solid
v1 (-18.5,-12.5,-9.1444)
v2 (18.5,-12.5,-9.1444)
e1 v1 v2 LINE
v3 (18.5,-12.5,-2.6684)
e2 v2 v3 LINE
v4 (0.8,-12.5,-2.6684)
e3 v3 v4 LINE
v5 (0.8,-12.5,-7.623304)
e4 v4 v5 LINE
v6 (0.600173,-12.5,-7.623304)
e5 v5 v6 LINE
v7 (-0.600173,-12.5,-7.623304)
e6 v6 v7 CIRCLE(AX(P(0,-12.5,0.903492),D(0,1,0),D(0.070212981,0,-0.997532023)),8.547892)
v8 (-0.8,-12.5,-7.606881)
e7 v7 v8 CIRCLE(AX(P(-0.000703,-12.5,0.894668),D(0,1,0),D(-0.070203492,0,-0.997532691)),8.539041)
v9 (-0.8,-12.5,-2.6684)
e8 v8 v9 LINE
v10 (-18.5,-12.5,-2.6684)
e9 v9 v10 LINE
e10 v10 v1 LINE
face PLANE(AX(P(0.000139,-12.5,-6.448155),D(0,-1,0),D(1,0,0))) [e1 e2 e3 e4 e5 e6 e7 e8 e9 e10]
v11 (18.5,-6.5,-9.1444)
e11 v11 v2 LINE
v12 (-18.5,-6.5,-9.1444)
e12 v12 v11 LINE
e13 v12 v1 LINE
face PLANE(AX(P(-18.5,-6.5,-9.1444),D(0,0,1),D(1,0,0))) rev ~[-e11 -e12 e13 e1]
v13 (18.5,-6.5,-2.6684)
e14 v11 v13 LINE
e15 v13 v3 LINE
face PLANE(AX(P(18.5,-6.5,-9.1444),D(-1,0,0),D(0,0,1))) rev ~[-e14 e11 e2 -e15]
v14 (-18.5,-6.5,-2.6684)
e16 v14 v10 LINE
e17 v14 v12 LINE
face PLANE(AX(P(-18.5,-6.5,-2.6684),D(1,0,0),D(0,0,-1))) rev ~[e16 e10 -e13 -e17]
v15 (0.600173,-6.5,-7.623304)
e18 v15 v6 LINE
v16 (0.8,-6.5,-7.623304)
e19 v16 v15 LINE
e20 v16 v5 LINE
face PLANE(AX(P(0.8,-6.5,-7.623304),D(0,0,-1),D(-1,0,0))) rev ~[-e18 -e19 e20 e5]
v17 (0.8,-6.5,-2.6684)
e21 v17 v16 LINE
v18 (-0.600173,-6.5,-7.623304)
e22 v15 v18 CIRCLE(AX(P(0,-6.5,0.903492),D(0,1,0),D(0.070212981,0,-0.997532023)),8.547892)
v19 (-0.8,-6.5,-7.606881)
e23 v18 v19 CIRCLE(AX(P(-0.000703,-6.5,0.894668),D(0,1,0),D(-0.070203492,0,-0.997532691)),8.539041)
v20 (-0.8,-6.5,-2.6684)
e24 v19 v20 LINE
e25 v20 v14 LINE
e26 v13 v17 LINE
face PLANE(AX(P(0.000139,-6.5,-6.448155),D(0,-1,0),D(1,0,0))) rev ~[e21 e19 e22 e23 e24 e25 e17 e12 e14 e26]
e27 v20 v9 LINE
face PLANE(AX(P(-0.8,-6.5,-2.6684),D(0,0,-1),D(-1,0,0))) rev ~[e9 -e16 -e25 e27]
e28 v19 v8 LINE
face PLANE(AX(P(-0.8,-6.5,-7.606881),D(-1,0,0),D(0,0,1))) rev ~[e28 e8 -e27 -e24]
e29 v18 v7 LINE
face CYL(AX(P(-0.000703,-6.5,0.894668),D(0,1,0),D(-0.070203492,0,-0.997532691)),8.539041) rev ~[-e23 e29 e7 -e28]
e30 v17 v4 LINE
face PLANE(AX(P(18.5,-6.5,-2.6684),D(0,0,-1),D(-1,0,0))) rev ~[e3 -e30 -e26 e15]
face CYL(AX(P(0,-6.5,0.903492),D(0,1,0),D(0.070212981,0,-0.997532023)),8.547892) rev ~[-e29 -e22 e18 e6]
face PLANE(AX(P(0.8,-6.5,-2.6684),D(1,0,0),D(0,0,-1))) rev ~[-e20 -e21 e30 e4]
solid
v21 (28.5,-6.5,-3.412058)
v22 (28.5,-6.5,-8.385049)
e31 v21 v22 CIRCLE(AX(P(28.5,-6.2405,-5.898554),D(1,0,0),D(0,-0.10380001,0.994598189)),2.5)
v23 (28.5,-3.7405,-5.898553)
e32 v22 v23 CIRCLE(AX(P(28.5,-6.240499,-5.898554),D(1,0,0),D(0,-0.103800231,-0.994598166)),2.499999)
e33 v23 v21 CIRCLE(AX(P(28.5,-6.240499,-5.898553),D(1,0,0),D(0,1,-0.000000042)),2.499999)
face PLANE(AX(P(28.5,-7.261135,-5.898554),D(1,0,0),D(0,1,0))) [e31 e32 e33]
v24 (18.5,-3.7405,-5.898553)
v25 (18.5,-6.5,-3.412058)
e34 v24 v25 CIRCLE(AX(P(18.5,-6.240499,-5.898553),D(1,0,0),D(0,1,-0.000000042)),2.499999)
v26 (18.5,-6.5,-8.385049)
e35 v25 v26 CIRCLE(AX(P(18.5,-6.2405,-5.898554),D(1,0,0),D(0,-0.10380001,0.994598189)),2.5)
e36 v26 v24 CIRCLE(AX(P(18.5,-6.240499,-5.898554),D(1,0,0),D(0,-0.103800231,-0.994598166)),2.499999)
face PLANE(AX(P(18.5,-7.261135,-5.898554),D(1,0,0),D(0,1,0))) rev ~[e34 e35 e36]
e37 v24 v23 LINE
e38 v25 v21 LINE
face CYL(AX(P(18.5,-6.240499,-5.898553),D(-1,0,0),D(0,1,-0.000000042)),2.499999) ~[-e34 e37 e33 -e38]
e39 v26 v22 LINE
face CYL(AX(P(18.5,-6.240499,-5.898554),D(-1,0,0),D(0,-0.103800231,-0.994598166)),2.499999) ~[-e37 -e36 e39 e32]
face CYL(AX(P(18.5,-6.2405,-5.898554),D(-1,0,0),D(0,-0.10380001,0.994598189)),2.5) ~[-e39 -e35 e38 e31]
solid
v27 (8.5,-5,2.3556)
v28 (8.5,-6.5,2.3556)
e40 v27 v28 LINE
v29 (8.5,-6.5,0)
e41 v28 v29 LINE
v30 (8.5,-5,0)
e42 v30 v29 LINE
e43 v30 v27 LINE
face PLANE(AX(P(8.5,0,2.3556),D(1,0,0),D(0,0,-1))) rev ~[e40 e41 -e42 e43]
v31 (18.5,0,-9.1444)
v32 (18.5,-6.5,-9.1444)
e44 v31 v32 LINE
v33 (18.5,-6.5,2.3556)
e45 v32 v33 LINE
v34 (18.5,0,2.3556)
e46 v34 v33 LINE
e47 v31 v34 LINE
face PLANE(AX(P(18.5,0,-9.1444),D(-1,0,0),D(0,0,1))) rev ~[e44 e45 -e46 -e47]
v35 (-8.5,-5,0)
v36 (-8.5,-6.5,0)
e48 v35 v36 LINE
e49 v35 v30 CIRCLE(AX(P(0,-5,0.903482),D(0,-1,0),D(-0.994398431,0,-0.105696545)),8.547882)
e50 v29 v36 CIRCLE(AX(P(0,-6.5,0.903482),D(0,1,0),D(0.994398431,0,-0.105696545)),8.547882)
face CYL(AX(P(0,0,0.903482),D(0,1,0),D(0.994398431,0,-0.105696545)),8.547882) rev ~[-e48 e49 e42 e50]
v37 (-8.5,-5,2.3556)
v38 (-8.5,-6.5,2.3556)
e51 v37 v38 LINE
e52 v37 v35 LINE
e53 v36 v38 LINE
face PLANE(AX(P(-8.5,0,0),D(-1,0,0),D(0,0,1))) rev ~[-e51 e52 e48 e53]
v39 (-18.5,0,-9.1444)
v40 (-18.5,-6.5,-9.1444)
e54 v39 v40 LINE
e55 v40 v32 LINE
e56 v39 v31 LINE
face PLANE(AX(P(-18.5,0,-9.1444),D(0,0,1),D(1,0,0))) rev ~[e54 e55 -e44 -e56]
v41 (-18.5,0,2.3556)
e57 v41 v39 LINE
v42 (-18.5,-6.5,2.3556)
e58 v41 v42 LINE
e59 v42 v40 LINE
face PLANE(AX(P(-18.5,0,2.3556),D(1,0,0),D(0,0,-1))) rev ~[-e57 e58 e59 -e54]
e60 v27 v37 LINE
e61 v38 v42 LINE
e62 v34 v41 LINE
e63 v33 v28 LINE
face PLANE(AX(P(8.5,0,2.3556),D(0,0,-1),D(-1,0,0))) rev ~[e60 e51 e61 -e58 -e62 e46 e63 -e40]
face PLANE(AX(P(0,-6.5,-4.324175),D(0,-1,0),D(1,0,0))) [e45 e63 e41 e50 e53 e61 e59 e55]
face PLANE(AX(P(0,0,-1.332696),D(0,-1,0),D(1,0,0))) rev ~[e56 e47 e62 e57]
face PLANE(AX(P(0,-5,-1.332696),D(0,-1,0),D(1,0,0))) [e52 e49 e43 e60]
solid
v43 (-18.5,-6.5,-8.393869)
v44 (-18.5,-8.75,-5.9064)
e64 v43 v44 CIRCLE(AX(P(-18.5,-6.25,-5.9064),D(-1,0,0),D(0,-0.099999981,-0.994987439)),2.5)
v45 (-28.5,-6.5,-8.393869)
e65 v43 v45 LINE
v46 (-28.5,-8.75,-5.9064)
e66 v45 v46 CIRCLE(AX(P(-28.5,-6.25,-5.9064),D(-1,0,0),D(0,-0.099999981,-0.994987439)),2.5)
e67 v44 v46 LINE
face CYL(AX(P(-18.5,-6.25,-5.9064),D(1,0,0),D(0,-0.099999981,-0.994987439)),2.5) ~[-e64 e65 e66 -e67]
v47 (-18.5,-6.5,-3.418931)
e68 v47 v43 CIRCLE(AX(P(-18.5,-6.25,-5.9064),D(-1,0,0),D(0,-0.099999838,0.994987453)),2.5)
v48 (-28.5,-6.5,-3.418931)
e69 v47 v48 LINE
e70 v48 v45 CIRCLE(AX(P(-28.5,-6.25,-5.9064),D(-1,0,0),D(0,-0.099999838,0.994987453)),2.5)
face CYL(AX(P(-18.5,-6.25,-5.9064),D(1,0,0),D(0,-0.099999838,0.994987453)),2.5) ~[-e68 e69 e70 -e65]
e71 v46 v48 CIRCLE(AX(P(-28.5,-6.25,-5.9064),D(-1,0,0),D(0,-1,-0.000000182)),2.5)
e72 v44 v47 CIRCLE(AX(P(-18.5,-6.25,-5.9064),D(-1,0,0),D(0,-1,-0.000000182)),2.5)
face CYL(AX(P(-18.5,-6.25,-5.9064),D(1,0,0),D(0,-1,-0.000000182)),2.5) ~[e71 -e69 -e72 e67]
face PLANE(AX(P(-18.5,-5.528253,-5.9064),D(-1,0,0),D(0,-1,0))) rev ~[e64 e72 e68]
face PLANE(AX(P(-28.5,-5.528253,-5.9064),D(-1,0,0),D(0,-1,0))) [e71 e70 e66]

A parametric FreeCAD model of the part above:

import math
import FreeCAD as App
import Part
import Sketcher

V = App.Vector
Q = App.Units.Quantity

doc = App.newDocument("Part")
params = doc.addObject("Spreadsheet::Sheet", "Params")
for row, (alias, value) in enumerate([
    ("sketch1_width", "17 mm"),
    ("pad1_length", "5 mm"),
    ("sketch2_width", "10 mm"),
    ("sketch2_width2", "37 mm"),
    ("sketch2_height", "11.5 mm"),
    ("pad2_length", "6.5 mm"),
    ("sketch3_width", "37 mm"),
    ("sketch3_width2", "17.7 mm"),
    ("pad3_length", "6 mm"),
    ("sketch4_radius", "2.5 mm"),
    ("pad4_length", "10 mm"),
    ("sketch5_radius", "2.5 mm"),
    ("pad5_length", "10 mm"),
], start=1):
    params.set(f"A{row}", alias)
    params.set(f"B{row}", "=" + value)
    params.setAlias(f"B{row}", alias)

body = doc.addObject("PartDesign::Body", "Body")

sketch1 = body.newObject("Sketcher::SketchObject", "Sketch")
sketch1.AttachmentSupport = (doc.getObject("XZ_Plane"), [""])
sketch1.MapMode = "FlatFace"
sketch1.addGeometry([
    Part.LineSegment(V(-8.5, 2.3556, 0), V(-8.5, 0, 0)),
    Part.ArcOfCircle(Part.Circle(V(0, 0.903482, 0), V(0, 0, 1), 8.547882), math.radians(-173.932701), math.radians(-6.067299)),
    Part.LineSegment(V(8.5, 0, 0), V(8.5, 2.3556, 0)),
    Part.LineSegment(V(8.5, 2.3556, 0), V(-8.5, 2.3556, 0)),
], False)
sketch1.addConstraint([
    Sketcher.Constraint("Coincident", 0, 2, 1, 1),
    Sketcher.Constraint("Coincident", 1, 2, 2, 1),
    Sketcher.Constraint("Coincident", 2, 2, 3, 1),
    Sketcher.Constraint("Coincident", 3, 2, 0, 1),
    Sketcher.Constraint("Vertical", 0),
    Sketcher.Constraint("Vertical", 2),
    Sketcher.Constraint("Horizontal", 3),
    Sketcher.Constraint("Symmetric", 0, 2, 1, 2, -1, 1),
    Sketcher.Constraint("PointOnObject", 1, 3, -2),
    Sketcher.Constraint("DistanceX", 3, 2, 3, 1, Q("17 mm")),
    Sketcher.Constraint("Radius", 1, Q("8.547882 mm")),
    Sketcher.Constraint("DistanceY", 0, 2, 0, 1, Q("2.3556 mm")),
])
sketch1.setExpression("Constraints[9]", "Params.sketch1_width")
pad1 = body.newObject("PartDesign::Pad", "Pad")
pad1.Profile = sketch1
pad1.setExpression("Length", "Params.pad1_length")

sketch2 = body.newObject("Sketcher::SketchObject", "Sketch001")
sketch2.AttachmentSupport = (doc.getObject("XZ_Plane"), [""])
sketch2.MapMode = "FlatFace"
sketch2.addGeometry([
    Part.ArcOfCircle(Part.Circle(V(0, 0.903482, 0), V(0, 0, 1), 8.547882), math.radians(-173.932701), math.radians(-6.067299)),
    Part.LineSegment(V(-8.5, 0, 0), V(-8.5, 2.3556, 0)),
    Part.LineSegment(V(-8.5, 2.3556, 0), V(-18.5, 2.3556, 0)),
    Part.LineSegment(V(-18.5, 2.3556, 0), V(-18.5, -9.1444, 0)),
    Part.LineSegment(V(-18.5, -9.1444, 0), V(18.5, -9.1444, 0)),
    Part.LineSegment(V(18.5, -9.1444, 0), V(18.5, 2.3556, 0)),
    Part.LineSegment(V(18.5, 2.3556, 0), V(8.5, 2.3556, 0)),
    Part.LineSegment(V(8.5, 2.3556, 0), V(8.5, 0, 0)),
], False)
sketch2.addConstraint([
    Sketcher.Constraint("Coincident", 0, 1, 1, 1),
    Sketcher.Constraint("Coincident", 1, 2, 2, 1),
    Sketcher.Constraint("Coincident", 2, 2, 3, 1),
    Sketcher.Constraint("Coincident", 3, 2, 4, 1),
    Sketcher.Constraint("Coincident", 4, 2, 5, 1),
    Sketcher.Constraint("Coincident", 5, 2, 6, 1),
    Sketcher.Constraint("Coincident", 6, 2, 7, 1),
    Sketcher.Constraint("Coincident", 7, 2, 0, 2),
    Sketcher.Constraint("Vertical", 1),
    Sketcher.Constraint("Horizontal", 2),
    Sketcher.Constraint("Vertical", 3),
    Sketcher.Constraint("Horizontal", 4),
    Sketcher.Constraint("Vertical", 5),
    Sketcher.Constraint("Horizontal", 6),
    Sketcher.Constraint("Vertical", 7),
    Sketcher.Constraint("Symmetric", 0, 1, 7, 2, -1, 1),
    Sketcher.Constraint("Symmetric", 2, 2, 5, 2, -2),
    Sketcher.Constraint("PointOnObject", 0, 3, -2),
    Sketcher.Constraint("DistanceX", 2, 2, 2, 1, Q("10 mm")),
    Sketcher.Constraint("DistanceX", 4, 1, 4, 2, Q("37 mm")),
    Sketcher.Constraint("DistanceY", 3, 2, 3, 1, Q("11.5 mm")),
    Sketcher.Constraint("Radius", 0, Q("8.547882 mm")),
    Sketcher.Constraint("DistanceY", 1, 1, 1, 2, Q("2.3556 mm")),
])
sketch2.setExpression("Constraints[18]", "Params.sketch2_width")
sketch2.setExpression("Constraints[19]", "Params.sketch2_width2")
sketch2.setExpression("Constraints[20]", "Params.sketch2_height")
pad2 = body.newObject("PartDesign::Pad", "Pad001")
pad2.Profile = sketch2
pad2.setExpression("Length", "Params.pad2_length")
body2 = doc.addObject("PartDesign::Body", "Body001")

sketch3 = body2.newObject("Sketcher::SketchObject", "Sketch002")
sketch3.AttachmentSupport = (doc.getObject("XZ_Plane001"), [""])
sketch3.MapMode = "FlatFace"
sketch3.AttachmentOffset = App.Placement(V(0, 0, 6.5), App.Rotation())
sketch3.addGeometry([
    Part.LineSegment(V(-18.5, -2.6684, 0), V(-18.5, -9.1444, 0)),
    Part.LineSegment(V(-18.5, -9.1444, 0), V(18.5, -9.1444, 0)),
    Part.LineSegment(V(18.5, -9.1444, 0), V(18.5, -2.6684, 0)),
    Part.LineSegment(V(18.5, -2.6684, 0), V(0.8, -2.6684, 0)),
    Part.LineSegment(V(0.8, -2.6684, 0), V(0.8, -7.623304, 0)),
    Part.LineSegment(V(0.8, -7.623304, 0), V(0.600173, -7.623304, 0)),
    Part.ArcOfCircle(Part.Circle(V(0, 0.903492, 0), V(0, 0, 1), 8.547892), math.radians(-94.02622), math.radians(-85.97378)),
    Part.ArcOfCircle(Part.Circle(V(-0.000703, 0.894668, 0), V(0, 0, 1), 8.539041), math.radians(-95.371038), math.radians(-94.025675)),
    Part.LineSegment(V(-0.8, -7.606881, 0), V(-0.8, -2.6684, 0)),
    Part.LineSegment(V(-0.8, -2.6684, 0), V(-18.5, -2.6684, 0)),
], False)
sketch3.addConstraint([
    Sketcher.Constraint("Coincident", 0, 2, 1, 1),
    Sketcher.Constraint("Coincident", 1, 2, 2, 1),
    Sketcher.Constraint("Coincident", 2, 2, 3, 1),
    Sketcher.Constraint("Coincident", 3, 2, 4, 1),
    Sketcher.Constraint("Coincident", 4, 2, 5, 1),
    Sketcher.Constraint("Coincident", 5, 2, 6, 2),
    Sketcher.Constraint("Coincident", 6, 1, 7, 2),
    Sketcher.Constraint("Coincident", 7, 1, 8, 1),
    Sketcher.Constraint("Coincident", 8, 2, 9, 1),
    Sketcher.Constraint("Coincident", 9, 2, 0, 1),
    Sketcher.Constraint("Vertical", 0),
    Sketcher.Constraint("Horizontal", 1),
    Sketcher.Constraint("Vertical", 2),
    Sketcher.Constraint("Horizontal", 3),
    Sketcher.Constraint("Vertical", 4),
    Sketcher.Constraint("Horizontal", 5),
    Sketcher.Constraint("Vertical", 8),
    Sketcher.Constraint("Horizontal", 9),
    Sketcher.Constraint("Symmetric", 5, 2, 6, 1, -2),
    Sketcher.Constraint("Symmetric", 3, 2, 8, 2, -2),
    Sketcher.Constraint("Equal", 3, 9),
    Sketcher.Constraint("DistanceX", 1, 1, 1, 2, Q("37 mm")),
    Sketcher.Constraint("DistanceX", 3, 2, 3, 1, Q("17.7 mm")),
    Sketcher.Constraint("DistanceY", 0, 2, 0, 1, Q("6.476 mm")),
    Sketcher.Constraint("Radius", 7, Q("8.539041 mm")),
    Sketcher.Constraint("Radius", 6, Q("8.547892 mm")),
    Sketcher.Constraint("DistanceY", 8, 1, 8, 2, Q("4.938481 mm")),
    Sketcher.Constraint("DistanceY", 0, 2, -1, 1, Q("9.1444 mm")),
    Sketcher.Constraint("DistanceX", 5, 2, 5, 1, Q("0.199827 mm")),
    Sketcher.Constraint("DistanceY", 4, 2, 4, 1, Q("4.954904 mm")),
])
sketch3.setExpression("Constraints[21]", "Params.sketch3_width")
sketch3.setExpression("Constraints[22]", "Params.sketch3_width2")
pad3 = body2.newObject("PartDesign::Pad", "Pad002")
pad3.Profile = sketch3
pad3.setExpression("Length", "Params.pad3_length")
body3 = doc.addObject("PartDesign::Body", "Body002")

sketch4 = body3.newObject("Sketcher::SketchObject", "Sketch003")
sketch4.AttachmentSupport = (doc.getObject("YZ_Plane002"), [""])
sketch4.MapMode = "FlatFace"
sketch4.AttachmentOffset = App.Placement(V(0, 0, 18.5), App.Rotation())
sketch4.addGeometry([
    Part.ArcOfCircle(Part.Circle(V(-6.2405, -5.898554, 0), V(0, 0, 1), 2.5), math.radians(95.958034), math.radians(264.041966)),
    Part.ArcOfCircle(Part.Circle(V(-6.240499, -5.898554, 0), V(0, 0, 1), 2.499999), math.radians(-95.958047), math.radians(0.000025)),
    Part.ArcOfCircle(Part.Circle(V(-6.240499, -5.898553, 0), V(0, 0, 1), 2.499999), math.radians(-0.000002), math.radians(95.958047)),
], False)
sketch4.addConstraint([
    Sketcher.Constraint("Tangent", 0, 2, 1, 1),
    Sketcher.Constraint("Tangent", 1, 2, 2, 1),
    Sketcher.Constraint("Tangent", 2, 2, 0, 1),
    Sketcher.Constraint("Horizontal", 2, 3, 1, 2),
    Sketcher.Constraint("Vertical", 0, 2, 2, 2),
    Sketcher.Constraint("Radius", 0, Q("2.5 mm")),
    Sketcher.Constraint("DistanceX", 0, 2, -1, 1, Q("6.5 mm")),
    Sketcher.Constraint("DistanceX", 0, 3, -1, 1, Q("6.2405 mm")),
    Sketcher.Constraint("DistanceY", 0, 2, -1, 1, Q("8.385049 mm")),
])
sketch4.setExpression("Constraints[5]", "Params.sketch4_radius")
pad4 = body3.newObject("PartDesign::Pad", "Pad003")
pad4.Profile = sketch4
pad4.setExpression("Length", "Params.pad4_length")
body4 = doc.addObject("PartDesign::Body", "Body003")

sketch5 = body4.newObject("Sketcher::SketchObject", "Sketch004")
sketch5.AttachmentSupport = (doc.getObject("YZ_Plane003"), [""])
sketch5.MapMode = "FlatFace"
sketch5.AttachmentOffset = App.Placement(V(0, 0, -18.5), App.Rotation())
sketch5.addGeometry([
    Part.ArcOfCircle(Part.Circle(V(-6.25, -5.9064, 0), V(0, 0, 1), 2.5), math.radians(-95.739161), math.radians(95.739161)),
    Part.ArcOfCircle(Part.Circle(V(-6.25, -5.9064, 0), V(0, 0, 1), 2.5), math.radians(179.99999), math.radians(264.260831)),
    Part.ArcOfCircle(Part.Circle(V(-6.25, -5.9064, 0), V(0, 0, 1), 2.5), math.radians(95.739169), math.radians(180.00001)),
], False)
sketch5.addConstraint([
    Sketcher.Constraint("Tangent", 0, 1, 1, 2),
    Sketcher.Constraint("Tangent", 1, 1, 2, 2),
    Sketcher.Constraint("Tangent", 2, 1, 0, 2),
    Sketcher.Constraint("Horizontal", 2, 3, 1, 1),
    Sketcher.Constraint("Vertical", 0, 1, 2, 1),
    Sketcher.Constraint("Radius", 0, Q("2.5 mm")),
    Sketcher.Constraint("DistanceX", 0, 1, -1, 1, Q("6.5 mm")),
    Sketcher.Constraint("DistanceX", 0, 3, -1, 1, Q("6.25 mm")),
    Sketcher.Constraint("DistanceY", 0, 3, -1, 1, Q("5.9064 mm")),
])
sketch5.setExpression("Constraints[5]", "Params.sketch5_radius")
pad5 = body4.newObject("PartDesign::Pad", "Pad004")
pad5.Profile = sketch5
pad5.setExpression("Length", "Params.pad5_length")
pad5.Reversed = True

doc.recompute()
